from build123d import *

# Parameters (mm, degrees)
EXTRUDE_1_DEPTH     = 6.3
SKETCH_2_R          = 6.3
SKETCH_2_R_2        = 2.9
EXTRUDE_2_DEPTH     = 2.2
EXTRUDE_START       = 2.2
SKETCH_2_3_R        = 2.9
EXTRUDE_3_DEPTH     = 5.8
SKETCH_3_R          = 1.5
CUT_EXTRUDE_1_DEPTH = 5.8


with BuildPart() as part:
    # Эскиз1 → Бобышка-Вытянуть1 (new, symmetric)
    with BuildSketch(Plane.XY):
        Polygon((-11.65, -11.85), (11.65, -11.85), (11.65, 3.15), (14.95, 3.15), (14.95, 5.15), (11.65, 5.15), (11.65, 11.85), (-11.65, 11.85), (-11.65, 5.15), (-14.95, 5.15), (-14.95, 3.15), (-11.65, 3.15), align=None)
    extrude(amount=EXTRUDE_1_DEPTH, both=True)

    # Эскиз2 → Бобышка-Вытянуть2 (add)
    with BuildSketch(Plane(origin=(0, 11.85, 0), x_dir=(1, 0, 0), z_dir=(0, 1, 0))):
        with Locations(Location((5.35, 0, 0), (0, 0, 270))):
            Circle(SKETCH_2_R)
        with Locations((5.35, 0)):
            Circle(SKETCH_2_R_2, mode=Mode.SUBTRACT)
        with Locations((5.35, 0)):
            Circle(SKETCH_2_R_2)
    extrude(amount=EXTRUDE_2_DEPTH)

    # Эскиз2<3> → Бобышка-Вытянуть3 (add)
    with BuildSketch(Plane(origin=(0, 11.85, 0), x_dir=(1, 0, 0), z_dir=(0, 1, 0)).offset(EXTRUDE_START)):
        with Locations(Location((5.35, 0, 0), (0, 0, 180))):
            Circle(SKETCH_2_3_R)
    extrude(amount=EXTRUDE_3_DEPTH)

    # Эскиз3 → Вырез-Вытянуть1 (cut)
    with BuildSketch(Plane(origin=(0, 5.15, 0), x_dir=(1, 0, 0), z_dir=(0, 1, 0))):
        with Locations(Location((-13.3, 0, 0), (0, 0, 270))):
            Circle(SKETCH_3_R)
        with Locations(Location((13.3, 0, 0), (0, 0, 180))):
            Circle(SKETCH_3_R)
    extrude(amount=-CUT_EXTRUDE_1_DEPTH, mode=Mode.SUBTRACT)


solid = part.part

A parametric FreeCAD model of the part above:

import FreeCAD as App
import Part
import Sketcher

V = App.Vector
Q = App.Units.Quantity


def add_polygon(sketch, points):
    """Adds a closed chain of lines whose ends are joined by coincident constraints."""
    first, n = sketch.GeometryCount, len(points)
    for a, b in zip(points, points[1:] + points[:1]):
        sketch.addGeometry(Part.LineSegment(App.Vector(*a, 0), App.Vector(*b, 0)), False)
    for i in range(n):
        sketch.addConstraint(Sketcher.Constraint("Coincident", first + i, 2, first + (i + 1) % n, 1))

doc = App.newDocument("Part")
params = doc.addObject("Spreadsheet::Sheet", "Params")
for row, (alias, value) in enumerate([
    ("sketch1_height", "15 mm"),
    ("sketch1_height2", "2 mm"),
    ("sketch1_width", "23.3 mm"),
    ("sketch1_width2", "3.3 mm"),
    ("sketch1_height3", "6.7 mm"),
    ("pad1_length", "12.6 mm"),
    ("sketch2_diameter", "12.6 mm"),
    ("pad2_length", "2.2 mm"),
    ("sketch3_diameter", "5.8 mm"),
    ("pad3_length", "5.8 mm"),
    ("sketch4_diameter", "3 mm"),
    ("pocket1_length", "5.8 mm"),
], start=1):
    params.set(f"A{row}", alias)
    params.set(f"B{row}", "=" + value)
    params.setAlias(f"B{row}", alias)

body = doc.addObject("PartDesign::Body", "Body")

sketch1 = body.newObject("Sketcher::SketchObject", "Sketch")
sketch1.AttachmentSupport = (doc.getObject("XY_Plane"), [""])
sketch1.MapMode = "FlatFace"
add_polygon(sketch1, [(-11.65, -11.85), (11.65, -11.85), (11.65, 3.15), (14.95, 3.15), (14.95, 5.15), (11.65, 5.15), (11.65, 11.85), (-11.65, 11.85), (-11.65, 5.15), (-14.95, 5.15), (-14.95, 3.15), (-11.65, 3.15)])
sketch1.addConstraint([
    Sketcher.Constraint("Horizontal", 0),
    Sketcher.Constraint("Vertical", 1),
    Sketcher.Constraint("Horizontal", 2),
    Sketcher.Constraint("Vertical", 3),
    Sketcher.Constraint("Horizontal", 4),
    Sketcher.Constraint("Vertical", 5),
    Sketcher.Constraint("Horizontal", 6),
    Sketcher.Constraint("Vertical", 7),
    Sketcher.Constraint("Horizontal", 8),
    Sketcher.Constraint("Vertical", 9),
    Sketcher.Constraint("Horizontal", 10),
    Sketcher.Constraint("Vertical", 11),
    Sketcher.Constraint("Symmetric", 0, 2, 6, 2, -1, 1),
    Sketcher.Constraint("Symmetric", 4, 2, 7, 2, -2),
    Sketcher.Constraint("Symmetric", 2, 2, 9, 2, -2),
    Sketcher.Constraint("Vertical", 7, 2, 10, 2),
    Sketcher.Constraint("DistanceY", 1, 1, 1, 2, Q("15 mm")),
    Sketcher.Constraint("DistanceY", 3, 1, 3, 2, Q("2 mm")),
    Sketcher.Constraint("DistanceX", 0, 1, 0, 2, Q("23.3 mm")),
    Sketcher.Constraint("DistanceX", 2, 1, 2, 2, Q("3.3 mm")),
    Sketcher.Constraint("DistanceY", 5, 1, 5, 2, Q("6.7 mm")),
])
sketch1.setExpression("Constraints[28]", "Params.sketch1_height")
sketch1.setExpression("Constraints[29]", "Params.sketch1_height2")
sketch1.setExpression("Constraints[30]", "Params.sketch1_width")
sketch1.setExpression("Constraints[31]", "Params.sketch1_width2")
sketch1.setExpression("Constraints[32]", "Params.sketch1_height3")
pad1 = body.newObject("PartDesign::Pad", "Pad")
pad1.Profile = sketch1
pad1.setExpression("Length", "Params.pad1_length")
pad1.Midplane = True

sketch2 = body.newObject("Sketcher::SketchObject", "Sketch001")
sketch2.AttachmentSupport = (doc.getObject("XZ_Plane"), [""])
sketch2.MapMode = "FlatFace"
sketch2.AttachmentOffset = App.Placement(V(0, 0, -11.85), App.Rotation())
sketch2.addGeometry(Part.Circle(V(5.35, 0, 0), V(0, 0, 1), 6.3), False)
sketch2.addConstraint([
    Sketcher.Constraint("PointOnObject", 0, 3, -1),
    Sketcher.Constraint("Diameter", 0, Q("12.6 mm")),
    Sketcher.Constraint("DistanceX", -1, 1, 0, 3, Q("5.35 mm")),
])
sketch2.setExpression("Constraints[1]", "Params.sketch2_diameter")
pad2 = body.newObject("PartDesign::Pad", "Pad001")
pad2.Profile = sketch2
pad2.setExpression("Length", "Params.pad2_length")
pad2.Reversed = True

sketch3 = body.newObject("Sketcher::SketchObject", "Sketch002")
sketch3.AttachmentSupport = (doc.getObject("XZ_Plane"), [""])
sketch3.MapMode = "FlatFace"
sketch3.AttachmentOffset = App.Placement(V(0, 0, -14.05), App.Rotation())
sketch3.addGeometry(Part.Circle(V(5.35, 0, 0), V(0, 0, 1), 2.9), False)
sketch3.addConstraint([
    Sketcher.Constraint("PointOnObject", 0, 3, -1),
    Sketcher.Constraint("Diameter", 0, Q("5.8 mm")),
    Sketcher.Constraint("DistanceX", -1, 1, 0, 3, Q("5.35 mm")),
])
sketch3.setExpression("Constraints[1]", "Params.sketch3_diameter")
pad3 = body.newObject("PartDesign::Pad", "Pad002")
pad3.Profile = sketch3
pad3.setExpression("Length", "Params.pad3_length")
pad3.Reversed = True

sketch4 = body.newObject("Sketcher::SketchObject", "Sketch003")
sketch4.AttachmentSupport = (doc.getObject("XZ_Plane"), [""])
sketch4.MapMode = "FlatFace"
sketch4.AttachmentOffset = App.Placement(V(0, 0, -5.15), App.Rotation())
sketch4.addGeometry([
    Part.Circle(V(-13.3, 0, 0), V(0, 0, 1), 1.5),
    Part.Circle(V(13.3, 0, 0), V(0, 0, 1), 1.5),
], False)
sketch4.addConstraint([
    Sketcher.Constraint("Equal", 0, 1),
    Sketcher.Constraint("Symmetric", 0, 3, 1, 3, -1, 1),
    Sketcher.Constraint("PointOnObject", 0, 3, -1),
    Sketcher.Constraint("Diameter", 0, Q("3 mm")),
    Sketcher.Constraint("DistanceX", 0, 3, -1, 1, Q("13.3 mm")),
])
sketch4.setExpression("Constraints[3]", "Params.sketch4_diameter")
pocket1 = body.newObject("PartDesign::Pocket", "Pocket")
pocket1.Profile = sketch4
pocket1.setExpression("Length", "Params.pocket1_length")
pocket1.Reversed = True

doc.recompute()
